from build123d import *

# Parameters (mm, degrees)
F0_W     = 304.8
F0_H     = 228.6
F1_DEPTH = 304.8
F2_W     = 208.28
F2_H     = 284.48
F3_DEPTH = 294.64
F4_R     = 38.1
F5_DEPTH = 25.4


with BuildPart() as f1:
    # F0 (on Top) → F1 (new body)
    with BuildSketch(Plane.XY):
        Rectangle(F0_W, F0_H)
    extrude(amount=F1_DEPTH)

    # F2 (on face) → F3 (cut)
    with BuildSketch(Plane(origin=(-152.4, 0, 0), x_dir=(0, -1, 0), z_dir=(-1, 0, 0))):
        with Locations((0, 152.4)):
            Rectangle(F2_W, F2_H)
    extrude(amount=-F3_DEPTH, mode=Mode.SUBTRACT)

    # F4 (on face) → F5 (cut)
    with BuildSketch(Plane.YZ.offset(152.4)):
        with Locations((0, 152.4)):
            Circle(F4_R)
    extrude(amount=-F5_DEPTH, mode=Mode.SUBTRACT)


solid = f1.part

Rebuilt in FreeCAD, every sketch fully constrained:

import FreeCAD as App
import Part
import Sketcher

V = App.Vector
Q = App.Units.Quantity


def add_polygon(sketch, points):
    """Adds a closed chain of lines whose ends are joined by coincident constraints."""
    first, n = sketch.GeometryCount, len(points)
    for a, b in zip(points, points[1:] + points[:1]):
        sketch.addGeometry(Part.LineSegment(App.Vector(*a, 0), App.Vector(*b, 0)), False)
    for i in range(n):
        sketch.addConstraint(Sketcher.Constraint("Coincident", first + i, 2, first + (i + 1) % n, 1))

doc = App.newDocument("Part")
body = doc.addObject("PartDesign::Body", "Body")

sketch1 = body.newObject("Sketcher::SketchObject", "Sketch")
sketch1.AttachmentSupport = (doc.getObject("XY_Plane"), [""])
sketch1.MapMode = "FlatFace"
add_polygon(sketch1, [(-152, 114), (-152, -114), (152, -114), (152, 114)])
sketch1.addConstraint(Sketcher.Constraint("Vertical", 0))
sketch1.addConstraint(Sketcher.Constraint("Horizontal", 1))
sketch1.addConstraint(Sketcher.Constraint("Vertical", 2))
sketch1.addConstraint(Sketcher.Constraint("Horizontal", 3))
sketch1.addConstraint(Sketcher.Constraint("Symmetric", 0, 2, 2, 2, -1, 1))
sketch1.addConstraint(Sketcher.Constraint("DistanceX", 1, 1, 1, 2, Q("12 in")))
sketch1.addConstraint(Sketcher.Constraint("DistanceY", 0, 2, 0, 1, Q("9 in")))
pad1 = body.newObject("PartDesign::Pad", "Pad")
pad1.Profile = sketch1
pad1.Length = Q("12 in")

sketch2 = body.newObject("Sketcher::SketchObject", "Sketch001")
sketch2.AttachmentSupport = (doc.getObject("YZ_Plane"), [""])
sketch2.MapMode = "FlatFace"
sketch2.AttachmentOffset = App.Placement(V(0, 0, -6 * 25.4), App.Rotation())
add_polygon(sketch2, [(104, 295), (104, 10), (-104, 10), (-104, 295)])
sketch2.addConstraint(Sketcher.Constraint("Vertical", 0))
sketch2.addConstraint(Sketcher.Constraint("Horizontal", 1))
sketch2.addConstraint(Sketcher.Constraint("Vertical", 2))
sketch2.addConstraint(Sketcher.Constraint("Horizontal", 3))
sketch2.addConstraint(Sketcher.Constraint("DistanceX", 1, 2, 1, 1, Q("8.2 in")))
sketch2.addConstraint(Sketcher.Constraint("DistanceY", 0, 2, 0, 1, Q("11.2 in")))
sketch2.addConstraint(Sketcher.Constraint("DistanceX", -1, 1, 0, 2, Q("4.1 in")))
sketch2.addConstraint(Sketcher.Constraint("DistanceY", -1, 1, 0, 2, Q("0.4 in")))
pocket1 = body.newObject("PartDesign::Pocket", "Pocket")
pocket1.Profile = sketch2
pocket1.Length = Q("11.6 in")
pocket1.Reversed = True

sketch3 = body.newObject("Sketcher::SketchObject", "Sketch002")
sketch3.AttachmentSupport = (doc.getObject("YZ_Plane"), [""])
sketch3.MapMode = "FlatFace"
sketch3.AttachmentOffset = App.Placement(V(0, 0, 6 * 25.4), App.Rotation())
sketch3.addGeometry(Part.Circle(V(0, 152, 0), V(0, 0, 1), 38), False)
sketch3.addConstraint(Sketcher.Constraint("PointOnObject", 0, 3, -2))
sketch3.addConstraint(Sketcher.Constraint("Diameter", 0, Q("3 in")))
sketch3.addConstraint(Sketcher.Constraint("DistanceY", -1, 1, 0, 3, Q("6 in")))
pocket2 = body.newObject("PartDesign::Pocket", "Pocket001")
pocket2.Profile = sketch3
pocket2.Length = Q("1 in")

doc.recompute()
